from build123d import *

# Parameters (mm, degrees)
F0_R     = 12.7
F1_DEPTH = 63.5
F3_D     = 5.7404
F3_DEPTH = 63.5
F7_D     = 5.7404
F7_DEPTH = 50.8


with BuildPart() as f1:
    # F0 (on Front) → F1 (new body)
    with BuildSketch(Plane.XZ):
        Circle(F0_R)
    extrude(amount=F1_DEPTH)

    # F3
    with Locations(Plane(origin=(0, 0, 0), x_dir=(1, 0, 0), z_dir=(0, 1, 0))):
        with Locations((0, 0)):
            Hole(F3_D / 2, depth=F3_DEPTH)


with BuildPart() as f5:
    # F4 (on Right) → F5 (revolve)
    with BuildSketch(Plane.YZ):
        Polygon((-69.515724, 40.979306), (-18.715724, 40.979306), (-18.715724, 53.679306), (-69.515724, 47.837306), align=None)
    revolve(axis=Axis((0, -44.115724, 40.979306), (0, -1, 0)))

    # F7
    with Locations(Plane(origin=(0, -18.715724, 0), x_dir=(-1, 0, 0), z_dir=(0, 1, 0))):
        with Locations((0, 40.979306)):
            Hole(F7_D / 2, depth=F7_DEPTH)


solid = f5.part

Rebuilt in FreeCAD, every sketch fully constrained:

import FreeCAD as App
import Part
import Sketcher
from FreeCAD import Vector
Q = App.Units.Quantity

doc = App.newDocument("Part")
body = doc.addObject("PartDesign::Body", "Body")

# Sketch on XZ plane
sketch1 = body.newObject("Sketcher::SketchObject", "Sketch")
sketch1.AttachmentSupport = (doc.getObject("XZ_Plane"), [""])
sketch1.MapMode = "FlatFace"
sketch1.addGeometry(Part.Circle(Vector(0, 0, 0), Vector(0, 0, 1), 13), False)
sketch1.addConstraint([
    Sketcher.Constraint("Coincident", 0, 3, -1, 1),
    Sketcher.Constraint("Diameter", 0, Q("1 in")),
])
pad1 = body.newObject("PartDesign::Pad", "Pad")
pad1.Profile = sketch1
pad1.Length = Q("2.5 in")

# Sketch on XZ plane
sketch2 = body.newObject("Sketcher::SketchObject", "Sketch001")
sketch2.AttachmentSupport = (doc.getObject("XZ_Plane"), [""])
sketch2.MapMode = "FlatFace"
sketch2.addGeometry(Part.Circle(Vector(0, 0, 0), Vector(0, 0, 1), 2.9), False)
sketch2.addConstraint([
    Sketcher.Constraint("Coincident", 0, 3, -1, 1),
    Sketcher.Constraint("Diameter", 0, Q("0.226 in")),
])
doc.recompute()
hole = body.newObject("PartDesign::Hole", "Hole")
hole.Profile = sketch2
hole.ThreadType = "None"
hole.Diameter = Q("0.226 in")
hole.DepthType = "Dimension"
hole.Depth = Q("2.5 in")
hole.DrillPoint = "Flat"
hole.Reversed = True
body2 = doc.addObject("PartDesign::Body", "Body001")

# Sketch on YZ plane
sketch3 = body2.newObject("Sketcher::SketchObject", "Sketch002")
sketch3.AttachmentSupport = (doc.getObject("YZ_Plane001"), [""])
sketch3.MapMode = "FlatFace"
sketch3.addGeometry([
    Part.LineSegment(Vector(-70, 41, 0), Vector(-19, 41, 0)),
    Part.LineSegment(Vector(-19, 41, 0), Vector(-19, 54, 0)),
    Part.LineSegment(Vector(-19, 54, 0), Vector(-70, 48, 0)),
    Part.LineSegment(Vector(-70, 48, 0), Vector(-70, 41, 0)),
], False)
sketch3.addGeometry(Part.LineSegment(Vector(-19, 41, 0), Vector(-70, 41, 0)), True)  # axis
sketch3.addConstraint([
    Sketcher.Constraint("Coincident", 0, 2, 1, 1),
    Sketcher.Constraint("Coincident", 1, 2, 2, 1),
    Sketcher.Constraint("Coincident", 2, 2, 3, 1),
    Sketcher.Constraint("Coincident", 3, 2, 0, 1),
    Sketcher.Constraint("Horizontal", 0),
    Sketcher.Constraint("Vertical", 1),
    Sketcher.Constraint("Vertical", 3),
    Sketcher.Constraint("Horizontal", 4),
    Sketcher.Constraint("Coincident", 4, 1, 0, 2),
    Sketcher.Constraint("Vertical", 2, 2, 4, 2),
    Sketcher.Constraint("DistanceX", 0, 1, 0, 2, Q("2 in")),
    Sketcher.Constraint("DistanceY", 1, 1, 1, 2, Q("0.5 in")),
    Sketcher.Constraint("DistanceY", 3, 2, 3, 1, Q("0.27 in")),
    Sketcher.Constraint("DistanceX", 0, 2, -1, 1, Q("18.715724 mm")),
    Sketcher.Constraint("DistanceY", -1, 1, 0, 2, Q("40.979306 mm")),
])
revolution = body2.newObject("PartDesign::Revolution", "Revolution")
revolution.Profile = sketch3
revolution.ReferenceAxis = (sketch3, ["Axis0"])
revolution.Angle = 360

# Sketch on XZ plane
sketch4 = body2.newObject("Sketcher::SketchObject", "Sketch003")
sketch4.AttachmentSupport = (doc.getObject("XZ_Plane001"), [""])
sketch4.MapMode = "FlatFace"
sketch4.AttachmentOffset = App.Placement(Vector(0, 0, 18.715724), App.Rotation())
sketch4.addGeometry(Part.Circle(Vector(0, 41, 0), Vector(0, 0, 1), 2.9), False)
sketch4.addConstraint([
    Sketcher.Constraint("PointOnObject", 0, 3, -2),
    Sketcher.Constraint("Diameter", 0, Q("0.226 in")),
    Sketcher.Constraint("DistanceY", -1, 1, 0, 3, Q("40.979306 mm")),
])
doc.recompute()
hole2 = body2.newObject("PartDesign::Hole", "Hole001")
hole2.Profile = sketch4
hole2.ThreadType = "None"
hole2.Diameter = Q("0.226 in")
hole2.DepthType = "Dimension"
hole2.Depth = Q("2 in")
hole2.DrillPoint = "Flat"
hole2.Reversed = True
body.Visibility = False

doc.recompute()
